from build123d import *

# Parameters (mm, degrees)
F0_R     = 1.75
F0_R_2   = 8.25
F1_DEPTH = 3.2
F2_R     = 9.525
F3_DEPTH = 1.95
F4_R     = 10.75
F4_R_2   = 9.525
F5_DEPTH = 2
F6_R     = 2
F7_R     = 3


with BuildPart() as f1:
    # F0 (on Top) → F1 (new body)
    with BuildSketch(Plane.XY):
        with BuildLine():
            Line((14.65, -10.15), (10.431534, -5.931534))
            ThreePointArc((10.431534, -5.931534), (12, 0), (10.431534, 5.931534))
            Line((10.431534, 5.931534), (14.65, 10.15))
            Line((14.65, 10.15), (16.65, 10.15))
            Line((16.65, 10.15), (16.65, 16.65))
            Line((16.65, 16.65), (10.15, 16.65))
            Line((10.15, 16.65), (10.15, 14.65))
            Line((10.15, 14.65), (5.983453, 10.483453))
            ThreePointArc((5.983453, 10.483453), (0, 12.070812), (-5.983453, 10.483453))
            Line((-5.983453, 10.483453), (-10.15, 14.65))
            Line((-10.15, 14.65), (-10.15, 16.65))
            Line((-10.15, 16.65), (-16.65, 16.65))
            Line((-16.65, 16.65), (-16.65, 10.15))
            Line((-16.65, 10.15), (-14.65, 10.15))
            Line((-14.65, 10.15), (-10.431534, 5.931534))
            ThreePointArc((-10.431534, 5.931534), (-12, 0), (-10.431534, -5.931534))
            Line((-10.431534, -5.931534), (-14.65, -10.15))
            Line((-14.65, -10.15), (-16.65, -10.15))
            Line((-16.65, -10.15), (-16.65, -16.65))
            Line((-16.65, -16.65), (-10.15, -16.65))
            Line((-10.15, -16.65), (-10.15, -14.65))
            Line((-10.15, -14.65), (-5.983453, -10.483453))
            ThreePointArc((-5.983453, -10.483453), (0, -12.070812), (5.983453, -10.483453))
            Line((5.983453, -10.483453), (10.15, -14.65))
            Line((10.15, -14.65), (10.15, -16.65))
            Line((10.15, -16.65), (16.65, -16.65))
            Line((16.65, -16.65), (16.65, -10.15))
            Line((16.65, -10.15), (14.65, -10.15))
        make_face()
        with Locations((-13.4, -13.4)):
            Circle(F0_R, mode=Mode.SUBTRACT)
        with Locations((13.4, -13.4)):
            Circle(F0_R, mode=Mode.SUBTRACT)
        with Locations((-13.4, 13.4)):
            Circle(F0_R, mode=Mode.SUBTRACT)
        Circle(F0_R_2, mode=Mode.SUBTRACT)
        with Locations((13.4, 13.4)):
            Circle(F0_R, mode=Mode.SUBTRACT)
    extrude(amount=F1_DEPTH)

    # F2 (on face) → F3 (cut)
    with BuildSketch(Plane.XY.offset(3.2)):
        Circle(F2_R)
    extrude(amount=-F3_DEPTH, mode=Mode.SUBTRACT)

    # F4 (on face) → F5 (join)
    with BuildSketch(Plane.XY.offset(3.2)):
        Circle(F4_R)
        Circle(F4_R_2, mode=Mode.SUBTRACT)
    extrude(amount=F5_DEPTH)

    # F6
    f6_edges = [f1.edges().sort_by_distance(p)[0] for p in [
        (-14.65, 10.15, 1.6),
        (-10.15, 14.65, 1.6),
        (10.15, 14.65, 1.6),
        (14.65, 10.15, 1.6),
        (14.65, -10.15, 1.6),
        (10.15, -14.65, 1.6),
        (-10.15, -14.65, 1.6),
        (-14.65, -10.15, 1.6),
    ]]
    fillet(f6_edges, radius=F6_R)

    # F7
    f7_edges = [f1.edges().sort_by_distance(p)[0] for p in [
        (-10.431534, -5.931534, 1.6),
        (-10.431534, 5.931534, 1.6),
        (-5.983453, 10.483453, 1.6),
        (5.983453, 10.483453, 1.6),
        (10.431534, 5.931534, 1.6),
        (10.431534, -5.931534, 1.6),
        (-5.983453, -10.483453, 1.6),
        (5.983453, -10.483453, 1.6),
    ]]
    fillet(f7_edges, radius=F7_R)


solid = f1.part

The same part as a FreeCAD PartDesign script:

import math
import FreeCAD as App
import Part
import Sketcher
from FreeCAD import Vector
Q = App.Units.Quantity


def edges_at(feature, points):
    """Names of the edges that pass closest to the given points."""
    edges = feature.Shape.Edges
    near = lambda p: min(range(len(edges)), key=lambda i: edges[i].distToShape(Part.Vertex(*p))[0])
    return sorted({f"Edge{near(p) + 1}" for p in points})

doc = App.newDocument("Part")
body = doc.addObject("PartDesign::Body", "Body")

sketch1 = body.newObject("Sketcher::SketchObject", "Sketch")
sketch1.AttachmentSupport = (doc.getObject("XY_Plane"), [""])
sketch1.MapMode = "FlatFace"
sketch1.addGeometry([
    Part.LineSegment(Vector(14.7, -10.2, 0), Vector(10.4, -5.9, 0)),
    Part.ArcOfCircle(Part.Circle(Vector(0, 0, 0), Vector(0, 0, 1), 12), math.radians(-30), math.radians(30)),
    Part.LineSegment(Vector(10.4, 5.9, 0), Vector(14.7, 10.2, 0)),
    Part.LineSegment(Vector(14.7, 10.2, 0), Vector(16.6, 10.2, 0)),
    Part.LineSegment(Vector(16.6, 10.2, 0), Vector(16.6, 16.6, 0)),
    Part.LineSegment(Vector(16.6, 16.6, 0), Vector(10.2, 16.6, 0)),
    Part.LineSegment(Vector(10.2, 16.6, 0), Vector(10.2, 14.7, 0)),
    Part.LineSegment(Vector(10.2, 14.7, 0), Vector(6, 10.5, 0)),
    Part.ArcOfCircle(Part.Circle(Vector(0, 0, 0), Vector(0, 0, 1), 12.1), math.radians(60), math.radians(120)),
    Part.LineSegment(Vector(-6, 10.5, 0), Vector(-10.2, 14.7, 0)),
    Part.LineSegment(Vector(-10.2, 14.7, 0), Vector(-10.2, 16.6, 0)),
    Part.LineSegment(Vector(-10.2, 16.6, 0), Vector(-16.6, 16.6, 0)),
    Part.LineSegment(Vector(-16.6, 16.6, 0), Vector(-16.6, 10.2, 0)),
    Part.LineSegment(Vector(-16.6, 10.2, 0), Vector(-14.7, 10.2, 0)),
    Part.LineSegment(Vector(-14.7, 10.2, 0), Vector(-10.4, 5.9, 0)),
    Part.ArcOfCircle(Part.Circle(Vector(0, 0, 0), Vector(0, 0, 1), 12), math.radians(150), math.radians(210)),
    Part.LineSegment(Vector(-10.4, -5.9, 0), Vector(-14.7, -10.2, 0)),
    Part.LineSegment(Vector(-14.7, -10.2, 0), Vector(-16.6, -10.2, 0)),
    Part.LineSegment(Vector(-16.6, -10.2, 0), Vector(-16.6, -16.6, 0)),
    Part.LineSegment(Vector(-16.6, -16.6, 0), Vector(-10.2, -16.6, 0)),
    Part.LineSegment(Vector(-10.2, -16.6, 0), Vector(-10.2, -14.7, 0)),
    Part.LineSegment(Vector(-10.2, -14.7, 0), Vector(-6, -10.5, 0)),
    Part.ArcOfCircle(Part.Circle(Vector(0, 0, 0), Vector(0, 0, 1), 12.1), math.radians(-120), math.radians(-60)),
    Part.LineSegment(Vector(6, -10.5, 0), Vector(10.2, -14.7, 0)),
    Part.LineSegment(Vector(10.2, -14.7, 0), Vector(10.2, -16.6, 0)),
    Part.LineSegment(Vector(10.2, -16.6, 0), Vector(16.6, -16.6, 0)),
    Part.LineSegment(Vector(16.6, -16.6, 0), Vector(16.6, -10.2, 0)),
    Part.LineSegment(Vector(16.6, -10.2, 0), Vector(14.7, -10.2, 0)),
    Part.Circle(Vector(-13.4, -13.4, 0), Vector(0, 0, 1), 1.8),
    Part.Circle(Vector(0, 0, 0), Vector(0, 0, 1), 8.2),
    Part.Circle(Vector(13.4, -13.4, 0), Vector(0, 0, 1), 1.8),
    Part.Circle(Vector(-13.4, 13.4, 0), Vector(0, 0, 1), 1.8),
    Part.Circle(Vector(13.4, 13.4, 0), Vector(0, 0, 1), 1.8),
], False)
sketch1.addConstraint([
    Sketcher.Constraint("Coincident", 0, 2, 1, 1),
    Sketcher.Constraint("Coincident", 1, 2, 2, 1),
    Sketcher.Constraint("Coincident", 2, 2, 3, 1),
    Sketcher.Constraint("Coincident", 3, 2, 4, 1),
    Sketcher.Constraint("Coincident", 4, 2, 5, 1),
    Sketcher.Constraint("Coincident", 5, 2, 6, 1),
    Sketcher.Constraint("Coincident", 6, 2, 7, 1),
    Sketcher.Constraint("Coincident", 7, 2, 8, 1),
    Sketcher.Constraint("Coincident", 8, 2, 9, 1),
    Sketcher.Constraint("Coincident", 9, 2, 10, 1),
    Sketcher.Constraint("Coincident", 10, 2, 11, 1),
    Sketcher.Constraint("Coincident", 11, 2, 12, 1),
    Sketcher.Constraint("Coincident", 12, 2, 13, 1),
    Sketcher.Constraint("Coincident", 13, 2, 14, 1),
    Sketcher.Constraint("Coincident", 14, 2, 15, 1),
    Sketcher.Constraint("Coincident", 15, 2, 16, 1),
    Sketcher.Constraint("Coincident", 16, 2, 17, 1),
    Sketcher.Constraint("Coincident", 17, 2, 18, 1),
    Sketcher.Constraint("Coincident", 18, 2, 19, 1),
    Sketcher.Constraint("Coincident", 19, 2, 20, 1),
    Sketcher.Constraint("Coincident", 20, 2, 21, 1),
    Sketcher.Constraint("Coincident", 21, 2, 22, 1),
    Sketcher.Constraint("Coincident", 22, 2, 23, 1),
    Sketcher.Constraint("Coincident", 23, 2, 24, 1),
    Sketcher.Constraint("Coincident", 24, 2, 25, 1),
    Sketcher.Constraint("Coincident", 25, 2, 26, 1),
    Sketcher.Constraint("Coincident", 26, 2, 27, 1),
    Sketcher.Constraint("Coincident", 27, 2, 0, 1),
    Sketcher.Constraint("Horizontal", 3),
    Sketcher.Constraint("Vertical", 4),
    Sketcher.Constraint("Horizontal", 5),
    Sketcher.Constraint("Vertical", 6),
    Sketcher.Constraint("Vertical", 10),
    Sketcher.Constraint("Horizontal", 11),
    Sketcher.Constraint("Vertical", 12),
    Sketcher.Constraint("Horizontal", 13),
    Sketcher.Constraint("Horizontal", 17),
    Sketcher.Constraint("Vertical", 18),
    Sketcher.Constraint("Horizontal", 19),
    Sketcher.Constraint("Vertical", 20),
    Sketcher.Constraint("Vertical", 24),
    Sketcher.Constraint("Horizontal", 25),
    Sketcher.Constraint("Vertical", 26),
    Sketcher.Constraint("Horizontal", 27),
    Sketcher.Constraint("Coincident", 1, 3, -1, 1),
    Sketcher.Constraint("Coincident", 8, 3, -1, 1),
    Sketcher.Constraint("Coincident", 15, 3, -1, 1),
    Sketcher.Constraint("Coincident", 22, 3, -1, 1),
    Sketcher.Constraint("Coincident", 29, 3, -1, 1),
    Sketcher.Constraint("Equal", 1, 15),
    Sketcher.Constraint("Equal", 8, 22),
    Sketcher.Constraint("Equal", 28, 30),
    Sketcher.Constraint("Equal", 30, 31),
    Sketcher.Constraint("Equal", 31, 32),
    Sketcher.Constraint("Symmetric", 30, 3, 31, 3, -1, 1),
    Sketcher.Constraint("Symmetric", 28, 3, 32, 3, -1, 1),
    Sketcher.Constraint("Symmetric", 2, 2, 16, 2, -1, 1),
    Sketcher.Constraint("Symmetric", 4, 2, 18, 2, -1, 1),
    Sketcher.Constraint("Symmetric", 6, 2, 20, 2, -1, 1),
    Sketcher.Constraint("Symmetric", 9, 2, 23, 2, -1, 1),
    Sketcher.Constraint("Symmetric", 11, 2, 25, 2, -1, 1),
    Sketcher.Constraint("Symmetric", 13, 2, 27, 2, -1, 1),
    Sketcher.Constraint("Symmetric", 28, 3, 30, 3, -2),
    Sketcher.Constraint("Symmetric", 6, 2, 9, 2, -2),
    Sketcher.Constraint("Symmetric", 4, 2, 11, 2, -2),
    Sketcher.Constraint("Symmetric", 2, 2, 13, 2, -2),
    Sketcher.Constraint("Perpendicular", 0, 2),
    Sketcher.Constraint("Parallel", 2, 7),
    Sketcher.Constraint("Perpendicular", 7, 9),
    Sketcher.Constraint("Parallel", 9, 14),
    Sketcher.Constraint("Perpendicular", 14, 16),
    Sketcher.Constraint("Parallel", 16, 21),
    Sketcher.Constraint("Perpendicular", 21, 23),
    Sketcher.Constraint("Horizontal", 7, 2, 8, 2),
    Sketcher.Constraint("Equal", 25, 4),
    Sketcher.Constraint("Equal", 27, 6),
    Sketcher.Constraint("Radius", 1, Q("11.999999 mm")),
    Sketcher.Constraint("Diameter", 28, Q("3.5 mm")),
    Sketcher.Constraint("Diameter", 29, Q("16.5 mm")),
    Sketcher.Constraint("DistanceX", 3, 1, 3, 2, Q("2 mm")),
    Sketcher.Constraint("DistanceX", 5, 2, 5, 1, Q("6.5 mm")),
    Sketcher.Constraint("DistanceX", 28, 3, -1, 1, Q("13.4 mm")),
    Sketcher.Constraint("DistanceY", 28, 3, -1, 1, Q("13.4 mm")),
    Sketcher.Constraint("DistanceX", -1, 1, 2, 2, Q("14.65 mm")),
    Sketcher.Constraint("DistanceY", -1, 1, 2, 2, Q("10.15 mm")),
    Sketcher.Constraint("Radius", 8, Q("12.07081 mm")),
])
pad1 = body.newObject("PartDesign::Pad", "Pad")
pad1.Profile = sketch1
pad1.Length = 3.2

sketch2 = body.newObject("Sketcher::SketchObject", "Sketch001")
sketch2.AttachmentSupport = (doc.getObject("XY_Plane"), [""])
sketch2.MapMode = "FlatFace"
sketch2.AttachmentOffset = App.Placement(Vector(0, 0, 3.2), App.Rotation())
sketch2.addGeometry(Part.Circle(Vector(0, 0, 0), Vector(0, 0, 1), 10), False)
sketch2.addConstraint([
    Sketcher.Constraint("Coincident", 0, 3, -1, 1),
    Sketcher.Constraint("Diameter", 0, Q("19.05 mm")),
])
pocket1 = body.newObject("PartDesign::Pocket", "Pocket")
pocket1.Profile = sketch2
pocket1.Length = 1.95

sketch3 = body.newObject("Sketcher::SketchObject", "Sketch002")
sketch3.AttachmentSupport = (doc.getObject("XY_Plane"), [""])
sketch3.MapMode = "FlatFace"
sketch3.AttachmentOffset = App.Placement(Vector(0, 0, 3.2), App.Rotation())
sketch3.addGeometry([
    Part.Circle(Vector(0, 0, 0), Vector(0, 0, 1), 11),
    Part.Circle(Vector(0, 0, 0), Vector(0, 0, 1), 10),
], False)
sketch3.addConstraint([
    Sketcher.Constraint("Coincident", 0, 3, -1, 1),
    Sketcher.Constraint("Coincident", 1, 3, -1, 1),
    Sketcher.Constraint("Diameter", 0, Q("21.5 mm")),
    Sketcher.Constraint("Diameter", 1, Q("19.05 mm")),
])
pad2 = body.newObject("PartDesign::Pad", "Pad001")
pad2.Profile = sketch3
pad2.Length = 2
doc.recompute()

fillet = body.newObject("PartDesign::Fillet", "Fillet")
fillet.Base = (pad2, edges_at(pad2, [
    (-14.65, 10.15, 1.6),
    (-10.15, 14.65, 1.6),
    (10.15, 14.65, 1.6),
    (14.65, 10.15, 1.6),
    (14.65, -10.15, 1.6),
    (10.15, -14.65, 1.6),
    (-10.15, -14.65, 1.6),
    (-14.65, -10.15, 1.6),
]))
fillet.Radius = 2
doc.recompute()

fillet2 = body.newObject("PartDesign::Fillet", "Fillet001")
fillet2.Base = (fillet, edges_at(fillet, [
    (-10.432, -5.932, 1.6),
    (-10.432, 5.932, 1.6),
    (-5.983, 10.483, 1.6),
    (5.983, 10.483, 1.6),
    (10.432, 5.932, 1.6),
    (10.432, -5.932, 1.6),
    (-5.983, -10.483, 1.6),
    (5.983, -10.483, 1.6),
]))
fillet2.Radius = 3

doc.recompute()
